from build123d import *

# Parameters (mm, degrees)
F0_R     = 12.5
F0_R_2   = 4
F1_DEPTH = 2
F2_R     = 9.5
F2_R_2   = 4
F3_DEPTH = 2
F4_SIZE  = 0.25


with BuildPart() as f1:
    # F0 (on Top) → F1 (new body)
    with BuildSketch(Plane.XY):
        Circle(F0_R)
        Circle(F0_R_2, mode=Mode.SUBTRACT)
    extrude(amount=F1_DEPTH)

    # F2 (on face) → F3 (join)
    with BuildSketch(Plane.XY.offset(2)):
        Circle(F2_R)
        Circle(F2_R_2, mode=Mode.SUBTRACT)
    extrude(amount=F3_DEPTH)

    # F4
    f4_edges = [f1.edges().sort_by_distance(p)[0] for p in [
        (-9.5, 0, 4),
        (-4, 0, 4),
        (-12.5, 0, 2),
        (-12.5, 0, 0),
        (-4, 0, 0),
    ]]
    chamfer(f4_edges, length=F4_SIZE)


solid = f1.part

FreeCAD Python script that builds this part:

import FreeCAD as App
import Part
import Sketcher
from FreeCAD import Vector


def edges_at(feature, points):
    """Names of the edges that pass closest to the given points."""
    edges = feature.Shape.Edges
    near = lambda p: min(range(len(edges)), key=lambda i: edges[i].distToShape(Part.Vertex(*p))[0])
    return sorted({f"Edge{near(p) + 1}" for p in points})

doc = App.newDocument("Part")
params = doc.addObject("Spreadsheet::Sheet", "Params")
for row, (alias, value) in enumerate([
    ("sketch1_diameter", "25 mm"),
    ("sketch1_diameter2", "8 mm"),
    ("pad1_length", "2 mm"),
    ("sketch2_diameter", "19 mm"),
    ("sketch2_diameter2", "8 mm"),
    ("pad2_length", "2 mm"),
    ("chamfer_size", "0.25 mm"),
], start=1):
    params.set(f"A{row}", alias)
    params.set(f"B{row}", "=" + value)
    params.setAlias(f"B{row}", alias)

body = doc.addObject("PartDesign::Body", "Body")

# Sketch on XY plane
sketch1 = body.newObject("Sketcher::SketchObject", "Sketch")
sketch1.AttachmentSupport = (doc.getObject("XY_Plane"), [""])
sketch1.MapMode = "FlatFace"
sketch1.addGeometry([
    Part.Circle(Vector(0, 0, 0), Vector(0, 0, 1), 12.5),
    Part.Circle(Vector(0, 0, 0), Vector(0, 0, 1), 4),
], False)
sketch1.addConstraint([
    Sketcher.Constraint("Coincident", 0, 3, -1, 1),
    Sketcher.Constraint("Coincident", 1, 3, -1, 1),
    Sketcher.Constraint("Diameter", 0, 25.0),
    Sketcher.Constraint("Diameter", 1, 8.0),
])
sketch1.setExpression("Constraints[2]", "Params.sketch1_diameter")
sketch1.setExpression("Constraints[3]", "Params.sketch1_diameter2")
pad1 = body.newObject("PartDesign::Pad", "Pad")
pad1.Profile = sketch1
pad1.setExpression("Length", "Params.pad1_length")

# Sketch on XY plane
sketch2 = body.newObject("Sketcher::SketchObject", "Sketch001")
sketch2.AttachmentSupport = (doc.getObject("XY_Plane"), [""])
sketch2.MapMode = "FlatFace"
sketch2.AttachmentOffset = App.Placement(Vector(0, 0, 2), App.Rotation())
sketch2.addGeometry([
    Part.Circle(Vector(0, 0, 0), Vector(0, 0, 1), 9.5),
    Part.Circle(Vector(0, 0, 0), Vector(0, 0, 1), 4),
], False)
sketch2.addConstraint([
    Sketcher.Constraint("Coincident", 0, 3, -1, 1),
    Sketcher.Constraint("Coincident", 1, 3, -1, 1),
    Sketcher.Constraint("Diameter", 0, 19.0),
    Sketcher.Constraint("Diameter", 1, 8.0),
])
sketch2.setExpression("Constraints[2]", "Params.sketch2_diameter")
sketch2.setExpression("Constraints[3]", "Params.sketch2_diameter2")
pad2 = body.newObject("PartDesign::Pad", "Pad001")
pad2.Profile = sketch2
pad2.setExpression("Length", "Params.pad2_length")
doc.recompute()

chamfer = body.newObject("PartDesign::Chamfer", "Chamfer")
chamfer.Base = (pad2, edges_at(pad2, [
    (-9.5, 0, 4),
    (-4, 0, 4),
    (-12.5, 0, 2),
    (-12.5, 0, 0),
    (-4, 0, 0),
]))
chamfer.setExpression("Size", "Params.chamfer_size")

doc.recompute()
